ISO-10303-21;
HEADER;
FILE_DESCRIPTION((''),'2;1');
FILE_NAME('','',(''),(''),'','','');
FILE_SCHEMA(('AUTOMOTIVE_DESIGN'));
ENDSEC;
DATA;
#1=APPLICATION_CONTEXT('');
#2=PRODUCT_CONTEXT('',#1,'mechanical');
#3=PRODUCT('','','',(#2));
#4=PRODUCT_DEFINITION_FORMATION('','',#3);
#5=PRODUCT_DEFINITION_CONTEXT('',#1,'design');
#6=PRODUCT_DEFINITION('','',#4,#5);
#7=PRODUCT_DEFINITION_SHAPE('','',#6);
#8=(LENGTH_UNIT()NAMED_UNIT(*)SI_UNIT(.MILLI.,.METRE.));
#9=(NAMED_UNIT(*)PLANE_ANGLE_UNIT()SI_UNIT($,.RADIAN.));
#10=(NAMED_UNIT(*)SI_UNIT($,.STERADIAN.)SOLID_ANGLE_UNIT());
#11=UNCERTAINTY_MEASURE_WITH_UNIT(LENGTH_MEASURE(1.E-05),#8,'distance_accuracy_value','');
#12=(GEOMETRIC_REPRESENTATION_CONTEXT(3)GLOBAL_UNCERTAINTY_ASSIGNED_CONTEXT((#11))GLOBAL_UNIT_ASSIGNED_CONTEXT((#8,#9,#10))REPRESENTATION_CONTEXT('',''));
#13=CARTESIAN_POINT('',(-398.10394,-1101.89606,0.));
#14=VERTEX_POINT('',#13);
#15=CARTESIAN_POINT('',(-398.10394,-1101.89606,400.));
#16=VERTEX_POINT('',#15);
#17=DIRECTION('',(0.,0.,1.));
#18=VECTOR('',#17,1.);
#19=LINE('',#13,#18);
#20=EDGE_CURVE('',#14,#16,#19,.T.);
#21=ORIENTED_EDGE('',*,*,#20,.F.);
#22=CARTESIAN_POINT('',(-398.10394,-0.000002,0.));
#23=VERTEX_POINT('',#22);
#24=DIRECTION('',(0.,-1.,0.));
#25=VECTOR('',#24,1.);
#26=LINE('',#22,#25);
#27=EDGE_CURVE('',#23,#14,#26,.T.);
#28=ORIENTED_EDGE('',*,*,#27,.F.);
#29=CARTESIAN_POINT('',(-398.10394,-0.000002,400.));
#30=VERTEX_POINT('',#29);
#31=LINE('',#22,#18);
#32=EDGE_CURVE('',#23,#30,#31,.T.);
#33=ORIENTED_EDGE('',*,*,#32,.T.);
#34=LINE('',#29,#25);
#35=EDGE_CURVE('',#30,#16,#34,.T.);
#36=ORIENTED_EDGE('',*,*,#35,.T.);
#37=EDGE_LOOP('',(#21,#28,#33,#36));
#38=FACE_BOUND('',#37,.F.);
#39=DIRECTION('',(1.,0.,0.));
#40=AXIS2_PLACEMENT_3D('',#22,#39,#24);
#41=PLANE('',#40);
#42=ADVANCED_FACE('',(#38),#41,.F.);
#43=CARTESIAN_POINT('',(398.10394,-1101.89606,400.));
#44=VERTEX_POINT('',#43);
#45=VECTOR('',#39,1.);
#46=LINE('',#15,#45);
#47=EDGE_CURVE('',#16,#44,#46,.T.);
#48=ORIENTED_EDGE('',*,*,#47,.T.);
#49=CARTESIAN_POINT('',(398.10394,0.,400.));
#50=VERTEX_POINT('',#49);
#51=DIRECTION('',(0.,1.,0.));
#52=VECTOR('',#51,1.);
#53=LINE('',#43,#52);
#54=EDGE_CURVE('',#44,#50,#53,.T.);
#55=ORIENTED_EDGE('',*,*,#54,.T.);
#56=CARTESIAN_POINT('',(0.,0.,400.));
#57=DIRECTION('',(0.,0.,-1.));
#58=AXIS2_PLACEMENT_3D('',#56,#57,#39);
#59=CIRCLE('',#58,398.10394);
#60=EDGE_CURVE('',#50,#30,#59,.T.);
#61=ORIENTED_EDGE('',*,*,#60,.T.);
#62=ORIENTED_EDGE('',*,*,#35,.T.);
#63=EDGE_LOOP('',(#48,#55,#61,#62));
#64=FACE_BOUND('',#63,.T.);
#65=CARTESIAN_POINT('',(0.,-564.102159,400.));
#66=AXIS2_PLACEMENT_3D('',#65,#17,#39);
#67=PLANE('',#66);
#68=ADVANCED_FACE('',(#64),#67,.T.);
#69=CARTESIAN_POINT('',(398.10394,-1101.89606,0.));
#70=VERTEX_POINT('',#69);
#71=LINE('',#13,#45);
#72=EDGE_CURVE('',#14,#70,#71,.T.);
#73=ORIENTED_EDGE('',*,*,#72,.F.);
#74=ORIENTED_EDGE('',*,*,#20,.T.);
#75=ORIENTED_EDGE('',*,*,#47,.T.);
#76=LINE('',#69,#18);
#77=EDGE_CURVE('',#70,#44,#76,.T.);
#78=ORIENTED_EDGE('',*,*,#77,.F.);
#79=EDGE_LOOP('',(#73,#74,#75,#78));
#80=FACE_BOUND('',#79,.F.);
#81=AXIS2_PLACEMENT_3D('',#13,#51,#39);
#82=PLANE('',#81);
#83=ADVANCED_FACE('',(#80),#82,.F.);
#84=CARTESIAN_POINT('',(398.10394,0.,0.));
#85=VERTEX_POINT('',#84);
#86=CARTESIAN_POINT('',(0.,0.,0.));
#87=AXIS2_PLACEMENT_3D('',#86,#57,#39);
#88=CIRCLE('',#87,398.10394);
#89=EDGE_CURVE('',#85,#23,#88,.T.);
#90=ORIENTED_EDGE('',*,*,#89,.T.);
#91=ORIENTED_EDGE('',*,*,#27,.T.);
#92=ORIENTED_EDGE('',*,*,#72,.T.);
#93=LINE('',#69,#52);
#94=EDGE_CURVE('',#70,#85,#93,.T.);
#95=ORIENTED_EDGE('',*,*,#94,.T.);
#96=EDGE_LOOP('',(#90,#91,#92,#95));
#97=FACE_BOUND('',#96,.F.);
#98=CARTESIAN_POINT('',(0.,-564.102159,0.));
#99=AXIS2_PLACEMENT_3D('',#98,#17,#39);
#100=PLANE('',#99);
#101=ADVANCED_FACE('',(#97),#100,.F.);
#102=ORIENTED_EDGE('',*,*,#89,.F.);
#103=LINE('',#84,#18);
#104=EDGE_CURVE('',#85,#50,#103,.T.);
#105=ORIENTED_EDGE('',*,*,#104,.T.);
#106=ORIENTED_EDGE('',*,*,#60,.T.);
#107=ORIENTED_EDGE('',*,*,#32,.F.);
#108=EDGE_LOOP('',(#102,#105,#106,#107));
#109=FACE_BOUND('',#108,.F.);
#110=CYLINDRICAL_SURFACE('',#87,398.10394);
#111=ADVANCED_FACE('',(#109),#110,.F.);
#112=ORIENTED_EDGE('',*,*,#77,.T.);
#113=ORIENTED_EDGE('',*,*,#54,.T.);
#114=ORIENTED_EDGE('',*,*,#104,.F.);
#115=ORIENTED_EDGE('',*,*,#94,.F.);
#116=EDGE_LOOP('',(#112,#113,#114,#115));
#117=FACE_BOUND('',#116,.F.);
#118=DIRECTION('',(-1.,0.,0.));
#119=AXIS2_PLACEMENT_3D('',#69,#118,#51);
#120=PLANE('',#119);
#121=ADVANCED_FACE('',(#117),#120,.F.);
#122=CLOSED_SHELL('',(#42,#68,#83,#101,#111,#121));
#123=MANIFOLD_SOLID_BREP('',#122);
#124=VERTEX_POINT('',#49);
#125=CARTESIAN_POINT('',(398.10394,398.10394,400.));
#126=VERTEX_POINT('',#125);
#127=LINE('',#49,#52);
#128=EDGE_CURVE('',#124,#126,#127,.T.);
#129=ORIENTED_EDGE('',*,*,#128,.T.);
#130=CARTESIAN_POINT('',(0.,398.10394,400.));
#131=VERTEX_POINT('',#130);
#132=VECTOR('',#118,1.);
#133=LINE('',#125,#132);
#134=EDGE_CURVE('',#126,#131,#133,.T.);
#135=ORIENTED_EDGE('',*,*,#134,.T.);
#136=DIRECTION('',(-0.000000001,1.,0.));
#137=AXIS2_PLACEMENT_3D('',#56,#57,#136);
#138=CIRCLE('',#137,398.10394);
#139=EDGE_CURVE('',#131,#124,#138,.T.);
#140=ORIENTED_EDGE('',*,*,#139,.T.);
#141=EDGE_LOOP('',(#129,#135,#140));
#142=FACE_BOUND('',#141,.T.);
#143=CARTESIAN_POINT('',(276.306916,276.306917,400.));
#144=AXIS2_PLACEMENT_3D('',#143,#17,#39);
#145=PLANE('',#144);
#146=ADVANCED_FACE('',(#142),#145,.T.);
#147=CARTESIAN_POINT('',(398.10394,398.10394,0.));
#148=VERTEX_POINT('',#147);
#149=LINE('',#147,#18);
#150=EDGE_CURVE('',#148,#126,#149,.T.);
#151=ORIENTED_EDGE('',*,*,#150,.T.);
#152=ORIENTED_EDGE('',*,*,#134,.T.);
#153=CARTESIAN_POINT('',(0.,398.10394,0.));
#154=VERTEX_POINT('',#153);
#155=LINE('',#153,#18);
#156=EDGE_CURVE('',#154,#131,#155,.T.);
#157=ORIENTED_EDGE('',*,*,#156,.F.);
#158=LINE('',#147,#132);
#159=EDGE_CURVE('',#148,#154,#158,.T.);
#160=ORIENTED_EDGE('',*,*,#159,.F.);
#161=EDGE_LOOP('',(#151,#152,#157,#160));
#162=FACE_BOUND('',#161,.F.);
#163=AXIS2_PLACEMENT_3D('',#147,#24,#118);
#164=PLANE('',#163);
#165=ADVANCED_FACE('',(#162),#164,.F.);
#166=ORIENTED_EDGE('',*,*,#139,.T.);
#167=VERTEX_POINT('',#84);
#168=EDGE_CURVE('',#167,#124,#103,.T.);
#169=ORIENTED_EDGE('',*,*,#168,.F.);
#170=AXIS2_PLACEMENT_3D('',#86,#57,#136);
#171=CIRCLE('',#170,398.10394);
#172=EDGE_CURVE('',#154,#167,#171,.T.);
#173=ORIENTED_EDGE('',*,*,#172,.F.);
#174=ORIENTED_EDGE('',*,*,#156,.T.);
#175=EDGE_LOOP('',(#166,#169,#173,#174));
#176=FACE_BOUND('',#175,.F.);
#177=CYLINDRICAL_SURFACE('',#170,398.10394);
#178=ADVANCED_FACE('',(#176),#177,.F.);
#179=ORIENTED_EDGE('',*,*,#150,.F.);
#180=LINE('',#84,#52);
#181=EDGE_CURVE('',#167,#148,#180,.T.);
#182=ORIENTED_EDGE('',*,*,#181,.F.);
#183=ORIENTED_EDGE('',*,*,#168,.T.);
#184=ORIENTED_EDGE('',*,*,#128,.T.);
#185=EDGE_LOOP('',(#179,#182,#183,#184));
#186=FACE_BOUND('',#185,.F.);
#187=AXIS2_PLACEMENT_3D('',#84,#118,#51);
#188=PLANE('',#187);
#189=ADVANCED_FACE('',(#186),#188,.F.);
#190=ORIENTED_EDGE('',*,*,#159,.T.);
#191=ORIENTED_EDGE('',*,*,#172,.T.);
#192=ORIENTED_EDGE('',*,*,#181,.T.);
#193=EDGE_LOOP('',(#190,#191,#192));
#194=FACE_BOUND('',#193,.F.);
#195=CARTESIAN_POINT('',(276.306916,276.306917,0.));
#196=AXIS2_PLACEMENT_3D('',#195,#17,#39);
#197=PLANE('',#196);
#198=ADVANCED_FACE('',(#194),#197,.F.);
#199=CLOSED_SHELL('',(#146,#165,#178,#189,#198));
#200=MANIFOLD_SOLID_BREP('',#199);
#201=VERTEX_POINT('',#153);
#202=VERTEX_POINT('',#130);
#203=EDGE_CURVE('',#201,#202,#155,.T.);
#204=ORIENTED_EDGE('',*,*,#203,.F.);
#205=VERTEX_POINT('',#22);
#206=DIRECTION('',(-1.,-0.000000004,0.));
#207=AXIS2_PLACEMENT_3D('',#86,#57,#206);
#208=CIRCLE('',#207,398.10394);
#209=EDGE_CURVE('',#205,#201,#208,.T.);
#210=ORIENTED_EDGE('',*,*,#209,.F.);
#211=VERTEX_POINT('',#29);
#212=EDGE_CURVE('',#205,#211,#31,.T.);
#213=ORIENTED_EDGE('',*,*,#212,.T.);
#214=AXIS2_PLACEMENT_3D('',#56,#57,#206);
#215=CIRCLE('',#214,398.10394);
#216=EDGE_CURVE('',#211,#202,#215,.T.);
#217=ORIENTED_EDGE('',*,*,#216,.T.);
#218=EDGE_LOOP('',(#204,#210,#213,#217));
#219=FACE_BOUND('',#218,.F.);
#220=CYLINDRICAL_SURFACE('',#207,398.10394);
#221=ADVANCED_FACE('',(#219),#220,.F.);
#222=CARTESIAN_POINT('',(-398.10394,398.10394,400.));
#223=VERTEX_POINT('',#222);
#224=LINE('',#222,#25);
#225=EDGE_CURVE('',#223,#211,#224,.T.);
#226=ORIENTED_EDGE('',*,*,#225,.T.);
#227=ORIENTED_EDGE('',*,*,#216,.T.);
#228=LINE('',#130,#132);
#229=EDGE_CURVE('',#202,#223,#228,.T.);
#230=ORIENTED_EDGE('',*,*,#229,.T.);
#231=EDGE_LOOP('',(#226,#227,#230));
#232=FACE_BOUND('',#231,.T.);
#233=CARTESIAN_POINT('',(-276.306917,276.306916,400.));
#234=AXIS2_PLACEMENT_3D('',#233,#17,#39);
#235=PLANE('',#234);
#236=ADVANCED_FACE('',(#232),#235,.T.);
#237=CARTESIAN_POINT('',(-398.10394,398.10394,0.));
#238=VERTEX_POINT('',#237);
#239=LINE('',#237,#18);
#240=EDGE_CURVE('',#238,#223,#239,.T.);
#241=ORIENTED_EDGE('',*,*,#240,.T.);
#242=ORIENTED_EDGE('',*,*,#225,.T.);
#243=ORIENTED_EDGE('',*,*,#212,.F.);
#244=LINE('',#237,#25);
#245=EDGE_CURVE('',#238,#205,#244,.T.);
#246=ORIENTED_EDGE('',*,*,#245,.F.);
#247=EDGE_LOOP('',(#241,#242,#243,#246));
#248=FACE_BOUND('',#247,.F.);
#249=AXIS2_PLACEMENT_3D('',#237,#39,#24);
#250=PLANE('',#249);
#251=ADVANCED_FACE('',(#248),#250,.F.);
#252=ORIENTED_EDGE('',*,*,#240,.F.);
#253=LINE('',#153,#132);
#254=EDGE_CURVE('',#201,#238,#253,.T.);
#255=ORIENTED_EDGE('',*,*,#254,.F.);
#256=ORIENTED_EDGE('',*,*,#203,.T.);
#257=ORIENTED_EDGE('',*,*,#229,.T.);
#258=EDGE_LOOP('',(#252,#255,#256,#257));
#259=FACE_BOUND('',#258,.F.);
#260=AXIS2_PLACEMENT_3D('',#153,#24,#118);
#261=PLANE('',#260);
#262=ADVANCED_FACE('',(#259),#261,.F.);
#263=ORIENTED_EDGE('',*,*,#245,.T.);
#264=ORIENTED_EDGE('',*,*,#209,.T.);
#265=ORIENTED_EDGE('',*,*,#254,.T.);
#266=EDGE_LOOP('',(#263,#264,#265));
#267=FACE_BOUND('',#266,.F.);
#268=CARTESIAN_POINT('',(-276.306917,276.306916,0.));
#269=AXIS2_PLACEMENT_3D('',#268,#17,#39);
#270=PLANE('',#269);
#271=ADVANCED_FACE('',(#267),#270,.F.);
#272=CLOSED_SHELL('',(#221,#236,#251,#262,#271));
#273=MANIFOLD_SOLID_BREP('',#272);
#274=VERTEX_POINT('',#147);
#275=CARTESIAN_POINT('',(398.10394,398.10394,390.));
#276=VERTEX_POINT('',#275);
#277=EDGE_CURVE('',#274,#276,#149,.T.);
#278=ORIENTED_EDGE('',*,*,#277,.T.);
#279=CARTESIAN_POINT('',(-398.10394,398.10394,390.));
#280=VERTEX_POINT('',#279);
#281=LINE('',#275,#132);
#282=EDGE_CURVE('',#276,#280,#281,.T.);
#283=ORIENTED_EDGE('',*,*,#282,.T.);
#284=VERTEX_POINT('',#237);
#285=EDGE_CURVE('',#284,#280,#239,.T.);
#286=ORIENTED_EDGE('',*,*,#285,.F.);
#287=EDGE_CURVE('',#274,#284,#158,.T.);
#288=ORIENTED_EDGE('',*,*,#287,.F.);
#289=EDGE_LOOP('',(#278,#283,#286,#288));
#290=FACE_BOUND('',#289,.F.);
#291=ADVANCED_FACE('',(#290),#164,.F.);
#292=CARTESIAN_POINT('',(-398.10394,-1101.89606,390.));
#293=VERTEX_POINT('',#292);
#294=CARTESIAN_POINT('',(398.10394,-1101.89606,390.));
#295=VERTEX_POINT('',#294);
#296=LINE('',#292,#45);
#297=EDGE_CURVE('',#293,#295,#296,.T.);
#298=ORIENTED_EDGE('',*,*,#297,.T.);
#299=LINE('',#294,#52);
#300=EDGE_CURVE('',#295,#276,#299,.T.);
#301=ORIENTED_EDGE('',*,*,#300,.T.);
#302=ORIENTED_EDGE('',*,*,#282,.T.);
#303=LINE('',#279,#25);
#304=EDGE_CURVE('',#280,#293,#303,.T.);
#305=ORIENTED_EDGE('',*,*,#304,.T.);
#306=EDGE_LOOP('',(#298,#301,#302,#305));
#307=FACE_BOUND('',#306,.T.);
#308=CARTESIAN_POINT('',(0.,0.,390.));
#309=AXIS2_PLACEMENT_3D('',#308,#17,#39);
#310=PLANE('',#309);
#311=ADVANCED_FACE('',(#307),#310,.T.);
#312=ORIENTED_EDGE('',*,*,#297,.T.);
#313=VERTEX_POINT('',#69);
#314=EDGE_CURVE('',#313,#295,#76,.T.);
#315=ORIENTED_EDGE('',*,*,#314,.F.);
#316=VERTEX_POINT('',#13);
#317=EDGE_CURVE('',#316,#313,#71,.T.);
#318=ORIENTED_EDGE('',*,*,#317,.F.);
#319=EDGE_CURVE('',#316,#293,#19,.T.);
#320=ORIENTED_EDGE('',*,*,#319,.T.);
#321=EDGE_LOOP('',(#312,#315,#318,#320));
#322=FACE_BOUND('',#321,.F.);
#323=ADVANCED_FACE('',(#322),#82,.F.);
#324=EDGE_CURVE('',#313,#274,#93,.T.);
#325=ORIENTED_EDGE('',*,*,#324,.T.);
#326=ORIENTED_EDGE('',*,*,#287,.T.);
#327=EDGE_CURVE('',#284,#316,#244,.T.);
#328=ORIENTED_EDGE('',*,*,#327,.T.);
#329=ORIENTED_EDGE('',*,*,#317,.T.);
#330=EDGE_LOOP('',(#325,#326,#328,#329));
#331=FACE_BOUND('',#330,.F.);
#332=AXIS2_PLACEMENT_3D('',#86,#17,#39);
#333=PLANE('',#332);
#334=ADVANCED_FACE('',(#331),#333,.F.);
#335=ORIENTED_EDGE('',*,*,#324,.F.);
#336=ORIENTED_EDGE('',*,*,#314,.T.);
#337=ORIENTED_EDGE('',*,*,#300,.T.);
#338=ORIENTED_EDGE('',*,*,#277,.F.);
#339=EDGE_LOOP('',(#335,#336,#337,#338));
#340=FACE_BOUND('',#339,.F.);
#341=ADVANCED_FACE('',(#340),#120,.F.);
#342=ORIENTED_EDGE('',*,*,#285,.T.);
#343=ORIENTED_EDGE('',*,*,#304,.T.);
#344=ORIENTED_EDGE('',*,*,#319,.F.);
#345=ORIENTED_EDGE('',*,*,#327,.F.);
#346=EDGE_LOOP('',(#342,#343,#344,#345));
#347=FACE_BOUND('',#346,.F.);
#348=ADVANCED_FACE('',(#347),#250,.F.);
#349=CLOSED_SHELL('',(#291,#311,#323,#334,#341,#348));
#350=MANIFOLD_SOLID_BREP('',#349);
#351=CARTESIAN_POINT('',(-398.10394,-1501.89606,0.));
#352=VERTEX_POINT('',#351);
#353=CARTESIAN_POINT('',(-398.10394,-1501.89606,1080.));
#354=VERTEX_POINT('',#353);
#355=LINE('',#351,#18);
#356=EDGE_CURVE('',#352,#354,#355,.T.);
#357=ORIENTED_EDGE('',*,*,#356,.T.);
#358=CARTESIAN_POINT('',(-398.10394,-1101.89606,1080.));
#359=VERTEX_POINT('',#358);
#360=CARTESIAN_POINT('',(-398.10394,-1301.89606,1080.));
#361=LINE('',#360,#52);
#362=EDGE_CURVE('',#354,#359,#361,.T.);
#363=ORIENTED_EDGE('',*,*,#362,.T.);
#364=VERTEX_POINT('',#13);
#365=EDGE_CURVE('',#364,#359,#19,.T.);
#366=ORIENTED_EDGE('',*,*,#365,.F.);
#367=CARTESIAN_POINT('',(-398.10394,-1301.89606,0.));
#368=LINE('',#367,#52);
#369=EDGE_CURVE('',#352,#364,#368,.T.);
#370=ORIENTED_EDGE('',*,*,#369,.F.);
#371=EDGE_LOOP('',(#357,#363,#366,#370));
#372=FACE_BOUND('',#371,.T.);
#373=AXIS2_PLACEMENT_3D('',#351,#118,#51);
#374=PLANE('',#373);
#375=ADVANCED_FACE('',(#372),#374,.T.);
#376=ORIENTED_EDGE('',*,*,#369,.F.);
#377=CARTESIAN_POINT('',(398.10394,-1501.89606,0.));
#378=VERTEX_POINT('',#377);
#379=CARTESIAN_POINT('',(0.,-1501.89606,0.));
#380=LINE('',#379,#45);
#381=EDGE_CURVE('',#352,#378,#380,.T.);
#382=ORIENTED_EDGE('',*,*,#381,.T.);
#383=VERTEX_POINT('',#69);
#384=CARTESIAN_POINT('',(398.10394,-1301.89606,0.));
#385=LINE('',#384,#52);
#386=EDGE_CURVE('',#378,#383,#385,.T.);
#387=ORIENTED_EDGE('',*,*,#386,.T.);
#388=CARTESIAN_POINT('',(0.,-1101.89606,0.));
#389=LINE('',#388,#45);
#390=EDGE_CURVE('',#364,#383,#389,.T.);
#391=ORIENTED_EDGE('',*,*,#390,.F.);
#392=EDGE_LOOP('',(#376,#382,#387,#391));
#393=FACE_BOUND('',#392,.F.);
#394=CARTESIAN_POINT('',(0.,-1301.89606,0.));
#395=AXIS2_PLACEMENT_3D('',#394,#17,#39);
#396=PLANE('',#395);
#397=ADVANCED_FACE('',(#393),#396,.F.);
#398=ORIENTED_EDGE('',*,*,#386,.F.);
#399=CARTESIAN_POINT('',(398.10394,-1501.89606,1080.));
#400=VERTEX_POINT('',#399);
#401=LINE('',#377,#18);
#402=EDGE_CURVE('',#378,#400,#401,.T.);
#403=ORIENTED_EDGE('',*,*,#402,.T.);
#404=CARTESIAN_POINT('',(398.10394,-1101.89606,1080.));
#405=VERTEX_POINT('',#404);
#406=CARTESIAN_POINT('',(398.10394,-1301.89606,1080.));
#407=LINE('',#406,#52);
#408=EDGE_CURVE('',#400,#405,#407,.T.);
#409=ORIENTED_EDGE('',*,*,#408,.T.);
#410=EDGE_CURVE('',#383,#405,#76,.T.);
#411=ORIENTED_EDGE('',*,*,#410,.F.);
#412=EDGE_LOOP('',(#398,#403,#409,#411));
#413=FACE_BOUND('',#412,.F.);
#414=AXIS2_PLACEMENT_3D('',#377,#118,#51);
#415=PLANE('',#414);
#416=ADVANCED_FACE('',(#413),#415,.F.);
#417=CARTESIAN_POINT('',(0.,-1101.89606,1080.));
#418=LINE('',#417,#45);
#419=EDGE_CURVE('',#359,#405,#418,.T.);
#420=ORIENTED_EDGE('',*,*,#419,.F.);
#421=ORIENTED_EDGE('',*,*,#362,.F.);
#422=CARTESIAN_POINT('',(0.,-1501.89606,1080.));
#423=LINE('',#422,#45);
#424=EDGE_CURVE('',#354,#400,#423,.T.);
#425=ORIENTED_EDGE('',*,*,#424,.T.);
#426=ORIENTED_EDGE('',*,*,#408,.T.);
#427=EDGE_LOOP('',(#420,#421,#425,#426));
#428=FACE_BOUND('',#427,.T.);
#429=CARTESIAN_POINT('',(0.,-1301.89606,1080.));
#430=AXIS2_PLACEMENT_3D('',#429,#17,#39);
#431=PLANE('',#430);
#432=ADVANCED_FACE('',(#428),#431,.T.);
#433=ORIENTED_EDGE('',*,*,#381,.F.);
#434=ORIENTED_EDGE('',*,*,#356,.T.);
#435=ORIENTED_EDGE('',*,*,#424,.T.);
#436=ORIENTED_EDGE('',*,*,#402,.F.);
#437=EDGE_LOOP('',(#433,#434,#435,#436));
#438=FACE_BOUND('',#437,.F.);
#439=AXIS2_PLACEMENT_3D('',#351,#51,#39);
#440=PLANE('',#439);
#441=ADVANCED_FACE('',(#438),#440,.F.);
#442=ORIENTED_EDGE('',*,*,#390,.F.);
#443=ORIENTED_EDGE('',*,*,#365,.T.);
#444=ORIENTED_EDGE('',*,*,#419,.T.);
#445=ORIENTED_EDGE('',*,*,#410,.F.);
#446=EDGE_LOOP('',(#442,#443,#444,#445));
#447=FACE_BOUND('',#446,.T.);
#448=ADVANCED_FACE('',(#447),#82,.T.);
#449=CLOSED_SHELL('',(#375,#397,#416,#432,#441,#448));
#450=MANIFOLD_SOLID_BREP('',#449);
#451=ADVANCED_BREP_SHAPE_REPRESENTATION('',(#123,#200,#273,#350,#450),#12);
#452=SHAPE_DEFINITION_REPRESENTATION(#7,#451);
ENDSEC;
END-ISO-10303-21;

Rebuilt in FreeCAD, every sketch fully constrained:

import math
import FreeCAD as App
import Part
import Sketcher

V = App.Vector


def add_polygon(sketch, points):
    """Adds a closed chain of lines whose ends are joined by coincident constraints."""
    first, n = sketch.GeometryCount, len(points)
    for a, b in zip(points, points[1:] + points[:1]):
        sketch.addGeometry(Part.LineSegment(App.Vector(*a, 0), App.Vector(*b, 0)), False)
    for i in range(n):
        sketch.addConstraint(Sketcher.Constraint("Coincident", first + i, 2, first + (i + 1) % n, 1))

doc = App.newDocument("Part")
params = doc.addObject("Spreadsheet::Sheet", "Params")
for row, (alias, value) in enumerate([
    ("pad1_length", "400 mm"),
    ("pad2_length", "400 mm"),
    ("pad3_length", "400 mm"),
    ("sketch4_height", "1500 mm"),
    ("pad4_length", "390 mm"),
    ("sketch5_height", "400 mm"),
    ("pad5_length", "1080 mm"),
], start=1):
    params.set(f"A{row}", alias)
    params.set(f"B{row}", "=" + value)
    params.setAlias(f"B{row}", alias)

body = doc.addObject("PartDesign::Body", "Body")

# Sketch on XY plane
sketch1 = doc.addObject("Sketcher::SketchObject", "Sketch")
body.addObject(sketch1)
sketch1.AttachmentSupport = (doc.XY_Plane, [""])
sketch1.MapMode = "FlatFace"
sketch1.addGeometry([
    Part.LineSegment(V(398, -1102, 0), V(398, 0, 0)),
    Part.ArcOfCircle(Part.Circle(V(0, 0, 0), V(0, 0, 1), 398), math.radians(-180), math.radians(0)),
    Part.LineSegment(V(-398, 0, 0), V(-398, -1102, 0)),
    Part.LineSegment(V(-398, -1102, 0), V(398, -1102, 0)),
], False)
sketch1.addConstraint([
    Sketcher.Constraint("Tangent", 0, 2, 1, 2),
    Sketcher.Constraint("Tangent", 1, 1, 2, 1),
    Sketcher.Constraint("Coincident", 2, 2, 3, 1),
    Sketcher.Constraint("Coincident", 3, 2, 0, 1),
    Sketcher.Constraint("Vertical", 0),
    Sketcher.Constraint("Vertical", 2),
    Sketcher.Constraint("Horizontal", 3),
    Sketcher.Constraint("Coincident", 1, 3, -1, 1),
    Sketcher.Constraint("Radius", 1, 398.10394),
    Sketcher.Constraint("DistanceY", 0, 1, 0, 2, 1101.89606),
])
pad1 = doc.addObject("PartDesign::Pad", "Pad")
body.addObject(pad1)
pad1.Profile = sketch1
pad1.setExpression("Length", "Params.pad1_length")
body2 = doc.addObject("PartDesign::Body", "Body001")

# Sketch on XY plane
sketch2 = doc.addObject("Sketcher::SketchObject", "Sketch001")
body2.addObject(sketch2)
sketch2.AttachmentSupport = (doc.getObject("XY_Plane001"), [""])
sketch2.MapMode = "FlatFace"
sketch2.addGeometry([
    Part.ArcOfCircle(Part.Circle(V(0, 0, 0), V(0, 0, 1), 398), math.radians(0), math.radians(90)),
    Part.LineSegment(V(398, 0, 0), V(398, 398, 0)),
    Part.LineSegment(V(398, 398, 0), V(0, 398, 0)),
], False)
sketch2.addConstraint([
    Sketcher.Constraint("Tangent", 0, 1, 1, 1),
    Sketcher.Constraint("Coincident", 1, 2, 2, 1),
    Sketcher.Constraint("Tangent", 2, 2, 0, 2),
    Sketcher.Constraint("Vertical", 1),
    Sketcher.Constraint("Horizontal", 2),
    Sketcher.Constraint("Coincident", 0, 3, -1, 1),
    Sketcher.Constraint("Radius", 0, 398.10394),
])
pad2 = doc.addObject("PartDesign::Pad", "Pad001")
body2.addObject(pad2)
pad2.Profile = sketch2
pad2.setExpression("Length", "Params.pad2_length")
body3 = doc.addObject("PartDesign::Body", "Body002")

# Sketch on XY plane
sketch3 = doc.addObject("Sketcher::SketchObject", "Sketch002")
body3.addObject(sketch3)
sketch3.AttachmentSupport = (doc.getObject("XY_Plane002"), [""])
sketch3.MapMode = "FlatFace"
sketch3.addGeometry([
    Part.ArcOfCircle(Part.Circle(V(0, 0, 0), V(0, 0, 1), 398), math.radians(90), math.radians(180)),
    Part.LineSegment(V(0, 398, 0), V(-398, 398, 0)),
    Part.LineSegment(V(-398, 398, 0), V(-398, 0, 0)),
], False)
sketch3.addConstraint([
    Sketcher.Constraint("Tangent", 0, 1, 1, 1),
    Sketcher.Constraint("Coincident", 1, 2, 2, 1),
    Sketcher.Constraint("Tangent", 2, 2, 0, 2),
    Sketcher.Constraint("Horizontal", 1),
    Sketcher.Constraint("Vertical", 2),
    Sketcher.Constraint("Coincident", 0, 3, -1, 1),
    Sketcher.Constraint("Radius", 0, 398.10394),
])
pad3 = doc.addObject("PartDesign::Pad", "Pad002")
body3.addObject(pad3)
pad3.Profile = sketch3
pad3.setExpression("Length", "Params.pad3_length")
body4 = doc.addObject("PartDesign::Body", "Body003")

# Sketch on XY plane
sketch4 = doc.addObject("Sketcher::SketchObject", "Sketch003")
body4.addObject(sketch4)
sketch4.AttachmentSupport = (doc.getObject("XY_Plane003"), [""])
sketch4.MapMode = "FlatFace"
add_polygon(sketch4, [(-398, -1102), (398, -1102), (398, 398), (-398, 398)])  # lines 0-3
sketch4.addConstraint([
    Sketcher.Constraint("Horizontal", 0),
    Sketcher.Constraint("Vertical", 1),
    Sketcher.Constraint("Horizontal", 2),
    Sketcher.Constraint("Vertical", 3),
    Sketcher.Constraint("DistanceY", 1, 1, 1, 2, 1500.0),
    Sketcher.Constraint("DistanceX", 0, 1, 0, 2, 796.20788),
    Sketcher.Constraint("DistanceX", -1, 1, 0, 2, 398.10394),
    Sketcher.Constraint("DistanceY", 0, 2, -1, 1, 1101.89606),
])
sketch4.setExpression("Constraints[8]", "Params.sketch4_height")
pad4 = doc.addObject("PartDesign::Pad", "Pad003")
body4.addObject(pad4)
pad4.Profile = sketch4
pad4.setExpression("Length", "Params.pad4_length")
body5 = doc.addObject("PartDesign::Body", "Body004")

# Sketch on XY plane
sketch5 = doc.addObject("Sketcher::SketchObject", "Sketch004")
body5.addObject(sketch5)
sketch5.AttachmentSupport = (doc.getObject("XY_Plane004"), [""])
sketch5.MapMode = "FlatFace"
add_polygon(sketch5, [(-398, -1102), (-398, -1502), (398, -1502), (398, -1102)])  # lines 0-3
sketch5.addConstraint([
    Sketcher.Constraint("Vertical", 0),
    Sketcher.Constraint("Horizontal", 1),
    Sketcher.Constraint("Vertical", 2),
    Sketcher.Constraint("Horizontal", 3),
    Sketcher.Constraint("DistanceY", 0, 2, 0, 1, 400.0),
    Sketcher.Constraint("DistanceX", 1, 1, 1, 2, 796.20788),
    Sketcher.Constraint("DistanceX", 0, 2, -1, 1, 398.10394),
    Sketcher.Constraint("DistanceY", 0, 2, -1, 1, 1501.89606),
])
sketch5.setExpression("Constraints[8]", "Params.sketch5_height")
pad5 = doc.addObject("PartDesign::Pad", "Pad004")
body5.addObject(pad5)
pad5.Profile = sketch5
pad5.setExpression("Length", "Params.pad5_length")

doc.recompute()
